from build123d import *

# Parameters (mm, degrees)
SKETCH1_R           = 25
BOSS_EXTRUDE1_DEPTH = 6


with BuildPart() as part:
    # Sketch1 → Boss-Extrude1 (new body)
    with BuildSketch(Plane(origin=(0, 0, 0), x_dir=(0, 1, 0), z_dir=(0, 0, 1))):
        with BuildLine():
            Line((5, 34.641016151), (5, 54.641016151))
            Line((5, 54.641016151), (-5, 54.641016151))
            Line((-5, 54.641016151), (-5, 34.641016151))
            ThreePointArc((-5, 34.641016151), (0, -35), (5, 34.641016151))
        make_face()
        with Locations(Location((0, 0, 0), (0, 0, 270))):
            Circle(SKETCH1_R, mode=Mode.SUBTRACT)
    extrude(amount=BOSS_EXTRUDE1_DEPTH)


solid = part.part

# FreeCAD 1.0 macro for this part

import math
import FreeCAD as App
import Part
import Sketcher

V = App.Vector
Q = App.Units.Quantity

doc = App.newDocument("Part")
body = doc.addObject("PartDesign::Body", "Body")

# Sketch on XY plane
sketch1 = doc.addObject("Sketcher::SketchObject", "Sketch")
body.addObject(sketch1)
sketch1.AttachmentSupport = (doc.XY_Plane, [""])
sketch1.MapMode = "FlatFace"
sketch1.addGeometry([
    Part.LineSegment(V(-35, 5, 0), V(-55, 5, 0)),  # 0
    Part.LineSegment(V(-55, 5, 0), V(-55, -5, 0)),  # 1
    Part.LineSegment(V(-55, -5, 0), V(-35, -5, 0)),  # 2
    Part.ArcOfCircle(Part.Circle(V(0, 0, 0), V(0, 0, 1), 35), math.radians(-172), math.radians(172)),  # 3
    Part.Circle(V(0, 0, 0), V(0, 0, 1), 25),  # 4
], False)
sketch1.addConstraint([
    Sketcher.Constraint("Coincident", 0, 2, 1, 1),
    Sketcher.Constraint("Coincident", 1, 2, 2, 1),
    Sketcher.Constraint("Coincident", 2, 2, 3, 1),
    Sketcher.Constraint("Coincident", 3, 2, 0, 1),
    Sketcher.Constraint("Horizontal", 0),
    Sketcher.Constraint("Vertical", 1),
    Sketcher.Constraint("Horizontal", 2),
    Sketcher.Constraint("Coincident", 3, 3, -1, 1),
    Sketcher.Constraint("Coincident", 4, 3, -1, 1),
    Sketcher.Constraint("Vertical", 2, 2, 3, 2),
    Sketcher.Constraint("Diameter", 4, Q("50 mm")),
    Sketcher.Constraint("Radius", 3, Q("35 mm")),
    Sketcher.Constraint("DistanceX", 0, 2, 0, 1, Q("20 mm")),
    Sketcher.Constraint("DistanceY", 1, 2, 1, 1, Q("10 mm")),
])
pad1 = doc.addObject("PartDesign::Pad", "Pad")
body.addObject(pad1)
pad1.Profile = sketch1
pad1.Length = 6

doc.recompute()
